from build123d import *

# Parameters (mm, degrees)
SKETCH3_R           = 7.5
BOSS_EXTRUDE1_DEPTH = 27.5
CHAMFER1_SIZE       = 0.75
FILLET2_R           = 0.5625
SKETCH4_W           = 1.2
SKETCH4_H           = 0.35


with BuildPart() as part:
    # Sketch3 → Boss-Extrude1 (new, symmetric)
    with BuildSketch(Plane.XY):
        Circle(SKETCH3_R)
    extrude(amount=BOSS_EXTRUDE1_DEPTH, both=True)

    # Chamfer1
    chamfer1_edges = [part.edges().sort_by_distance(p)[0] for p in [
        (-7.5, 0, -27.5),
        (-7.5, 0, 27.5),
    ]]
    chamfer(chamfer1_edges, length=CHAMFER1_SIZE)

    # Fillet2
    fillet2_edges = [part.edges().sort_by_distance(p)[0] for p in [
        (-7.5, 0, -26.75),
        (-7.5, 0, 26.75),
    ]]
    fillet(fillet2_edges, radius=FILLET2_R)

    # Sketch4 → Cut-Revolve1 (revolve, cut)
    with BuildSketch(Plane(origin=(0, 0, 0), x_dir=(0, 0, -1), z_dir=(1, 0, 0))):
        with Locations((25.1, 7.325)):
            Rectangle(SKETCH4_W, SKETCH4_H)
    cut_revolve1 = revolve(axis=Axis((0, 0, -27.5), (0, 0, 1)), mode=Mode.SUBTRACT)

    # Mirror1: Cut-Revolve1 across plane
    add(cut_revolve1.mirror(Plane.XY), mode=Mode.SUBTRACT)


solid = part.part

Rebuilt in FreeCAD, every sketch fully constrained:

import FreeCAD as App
import Part
import Sketcher


def edges_at(feature, points):
    """Names of the edges that pass closest to the given points."""
    edges = feature.Shape.Edges
    near = lambda p: min(range(len(edges)), key=lambda i: edges[i].distToShape(Part.Vertex(*p))[0])
    return sorted({f"Edge{near(p) + 1}" for p in points})

doc = App.newDocument("Part")
body = doc.addObject("PartDesign::Body", "Body")

# Sketch on XY plane
sketch1 = body.newObject("Sketcher::SketchObject", "Sketch")
sketch1.AttachmentSupport = (doc.getObject("XY_Plane"), [""])
sketch1.MapMode = "FlatFace"
sketch1.addGeometry(Part.Circle(App.Vector(0, 0, 0), App.Vector(0, 0, 1), 8), False)
sketch1.addConstraint([
    Sketcher.Constraint("Coincident", 0, 3, -1, 1),
    Sketcher.Constraint("Diameter", 0, 15.0),
])
pad1 = body.newObject("PartDesign::Pad", "Pad")
pad1.Profile = sketch1
pad1.Length = 55
pad1.Midplane = True
doc.recompute()

chamfer = body.newObject("PartDesign::Chamfer", "Chamfer")
chamfer.Base = (pad1, edges_at(pad1, [(-7.5, 0, -27.5), (-7.5, 0, 27.5)]))
chamfer.Size = 0.75
doc.recompute()

fillet = body.newObject("PartDesign::Fillet", "Fillet")
fillet.Base = (chamfer, edges_at(chamfer, [(-7.5, 0, -26.75), (-7.5, 0, 26.75)]))
fillet.Radius = 0.5625

# Sketch on YZ plane
sketch2 = body.newObject("Sketcher::SketchObject", "Sketch001")
sketch2.AttachmentSupport = (doc.getObject("YZ_Plane"), [""])
sketch2.MapMode = "FlatFace"
sketch2.addGeometry([
    Part.LineSegment(App.Vector(7.5, -24.5, 0), App.Vector(7.15, -24.5, 0)),
    Part.LineSegment(App.Vector(7.15, -24.5, 0), App.Vector(7.15, -25.7, 0)),
    Part.LineSegment(App.Vector(7.15, -25.7, 0), App.Vector(7.5, -25.7, 0)),
    Part.LineSegment(App.Vector(7.5, -25.7, 0), App.Vector(7.5, -24.5, 0)),
], False)
sketch2.addConstraint([
    Sketcher.Constraint("Coincident", 0, 2, 1, 1),
    Sketcher.Constraint("Coincident", 1, 2, 2, 1),
    Sketcher.Constraint("Coincident", 2, 2, 3, 1),
    Sketcher.Constraint("Coincident", 3, 2, 0, 1),
    Sketcher.Constraint("Horizontal", 0),
    Sketcher.Constraint("Vertical", 1),
    Sketcher.Constraint("Horizontal", 2),
    Sketcher.Constraint("Vertical", 3),
    Sketcher.Constraint("DistanceY", 1, 2, 1, 1, 1.2),
    Sketcher.Constraint("DistanceX", 0, 2, 0, 1, 0.35),
    Sketcher.Constraint("DistanceY", 0, 2, -1, 1, 24.5),
    Sketcher.Constraint("DistanceX", -1, 1, 2, 2, 7.5),
])
groove = body.newObject("PartDesign::Groove", "Groove")
groove.Profile = sketch2
groove.ReferenceAxis = (sketch2, ["V_Axis"])
groove.Angle = 360
doc.recompute()

mirrored = body.newObject("PartDesign::Mirrored", "Mirrored")
mirrored.Originals = [groove]
mirrored.MirrorPlane = (doc.getObject("XY_Plane"), [""])
body.Tip = mirrored

doc.recompute()
